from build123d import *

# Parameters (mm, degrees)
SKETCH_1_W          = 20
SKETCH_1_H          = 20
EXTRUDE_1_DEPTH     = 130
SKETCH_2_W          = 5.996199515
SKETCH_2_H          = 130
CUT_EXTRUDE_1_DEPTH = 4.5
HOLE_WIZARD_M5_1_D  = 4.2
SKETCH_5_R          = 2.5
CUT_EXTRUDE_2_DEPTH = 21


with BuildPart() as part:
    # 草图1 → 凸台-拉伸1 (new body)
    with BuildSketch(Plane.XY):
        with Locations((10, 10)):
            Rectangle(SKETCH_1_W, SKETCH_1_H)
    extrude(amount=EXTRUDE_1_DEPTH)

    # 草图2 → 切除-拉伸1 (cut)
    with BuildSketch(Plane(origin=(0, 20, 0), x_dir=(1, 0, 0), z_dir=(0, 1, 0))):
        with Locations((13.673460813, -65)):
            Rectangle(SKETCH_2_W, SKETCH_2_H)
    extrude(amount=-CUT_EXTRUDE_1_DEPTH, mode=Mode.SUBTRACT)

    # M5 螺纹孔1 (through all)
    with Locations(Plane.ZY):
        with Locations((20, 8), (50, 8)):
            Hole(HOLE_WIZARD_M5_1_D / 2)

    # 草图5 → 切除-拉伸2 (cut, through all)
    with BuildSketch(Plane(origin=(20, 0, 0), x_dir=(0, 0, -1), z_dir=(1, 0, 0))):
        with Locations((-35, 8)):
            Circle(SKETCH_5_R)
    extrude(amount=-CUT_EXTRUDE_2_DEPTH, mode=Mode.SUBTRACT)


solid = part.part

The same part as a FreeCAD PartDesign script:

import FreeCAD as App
import Part
import Sketcher

doc = App.newDocument("Part")
params = doc.addObject("Spreadsheet::Sheet", "Params")
for row, (alias, value) in enumerate([
    ("sketch1_width", "20 mm"),
    ("pad1_length", "130 mm"),
    ("sketch2_height", "130 mm"),
    ("pocket1_length", "4.5 mm"),
    ("sketch3_diameter", "4.2 mm"),
    ("hole_diameter", "4.2 mm"),
    ("sketch4_diameter", "5 mm"),
], start=1):
    params.set(f"A{row}", alias)
    params.set(f"B{row}", "=" + value)
    params.setAlias(f"B{row}", alias)

body = doc.addObject("PartDesign::Body", "Body")

sketch1 = body.newObject("Sketcher::SketchObject", "Sketch")
sketch1.AttachmentSupport = (doc.getObject("XY_Plane"), [""])
sketch1.MapMode = "FlatFace"
sketch1.addGeometry(Part.LineSegment(App.Vector(0, 20, 0), App.Vector(0, 0, 0)), False)
sketch1.addGeometry(Part.LineSegment(App.Vector(0, 0, 0), App.Vector(20, 0, 0)), False)
sketch1.addGeometry(Part.LineSegment(App.Vector(20, 0, 0), App.Vector(20, 20, 0)), False)
sketch1.addGeometry(Part.LineSegment(App.Vector(20, 20, 0), App.Vector(0, 20, 0)), False)
sketch1.addConstraint(Sketcher.Constraint("Coincident", 0, 2, 1, 1))
sketch1.addConstraint(Sketcher.Constraint("Coincident", 1, 2, 2, 1))
sketch1.addConstraint(Sketcher.Constraint("Coincident", 2, 2, 3, 1))
sketch1.addConstraint(Sketcher.Constraint("Coincident", 3, 2, 0, 1))
sketch1.addConstraint(Sketcher.Constraint("Vertical", 0))
sketch1.addConstraint(Sketcher.Constraint("Horizontal", 1))
sketch1.addConstraint(Sketcher.Constraint("Vertical", 2))
sketch1.addConstraint(Sketcher.Constraint("Horizontal", 3))
sketch1.addConstraint(Sketcher.Constraint("Coincident", 0, 2, -1, 1))
sketch1.addConstraint(Sketcher.Constraint("Equal", 3, 0))
sketch1.addConstraint(Sketcher.Constraint("DistanceX", 1, 1, 1, 2, 20.0))
sketch1.setExpression("Constraints[10]", "Params.sketch1_width")
pad1 = body.newObject("PartDesign::Pad", "Pad")
pad1.Profile = sketch1
pad1.setExpression("Length", "Params.pad1_length")

sketch2 = body.newObject("Sketcher::SketchObject", "Sketch001")
sketch2.AttachmentSupport = (doc.getObject("XZ_Plane"), [""])
sketch2.MapMode = "FlatFace"
sketch2.AttachmentOffset = App.Placement(App.Vector(0, 0, -20), App.Rotation())
sketch2.addGeometry(Part.LineSegment(App.Vector(11, 0, 0), App.Vector(11, 130, 0)), False)
sketch2.addGeometry(Part.LineSegment(App.Vector(11, 130, 0), App.Vector(17, 130, 0)), False)
sketch2.addGeometry(Part.LineSegment(App.Vector(17, 130, 0), App.Vector(17, 0, 0)), False)
sketch2.addGeometry(Part.LineSegment(App.Vector(17, 0, 0), App.Vector(11, 0, 0)), False)
sketch2.addConstraint(Sketcher.Constraint("Coincident", 0, 2, 1, 1))
sketch2.addConstraint(Sketcher.Constraint("Coincident", 1, 2, 2, 1))
sketch2.addConstraint(Sketcher.Constraint("Coincident", 2, 2, 3, 1))
sketch2.addConstraint(Sketcher.Constraint("Coincident", 3, 2, 0, 1))
sketch2.addConstraint(Sketcher.Constraint("Vertical", 0))
sketch2.addConstraint(Sketcher.Constraint("Horizontal", 1))
sketch2.addConstraint(Sketcher.Constraint("Vertical", 2))
sketch2.addConstraint(Sketcher.Constraint("Horizontal", 3))
sketch2.addConstraint(Sketcher.Constraint("PointOnObject", 2, 2, -1))
sketch2.addConstraint(Sketcher.Constraint("DistanceY", 0, 1, 0, 2, 130.0))
sketch2.addConstraint(Sketcher.Constraint("DistanceX", 1, 1, 1, 2, 5.9962))
sketch2.addConstraint(Sketcher.Constraint("DistanceX", -1, 1, 0, 2, 10.675361))
sketch2.setExpression("Constraints[9]", "Params.sketch2_height")
pocket1 = body.newObject("PartDesign::Pocket", "Pocket")
pocket1.Profile = sketch2
pocket1.setExpression("Length", "Params.pocket1_length")
pocket1.Reversed = True

sketch3 = body.newObject("Sketcher::SketchObject", "Sketch002")
sketch3.AttachmentSupport = (doc.getObject("YZ_Plane"), [""])
sketch3.MapMode = "FlatFace"
sketch3.addGeometry(Part.Circle(App.Vector(8, 20, 0), App.Vector(0, 0, 1), 2.1), False)
sketch3.addGeometry(Part.Circle(App.Vector(8, 50, 0), App.Vector(0, 0, 1), 2.1), False)
sketch3.addConstraint(Sketcher.Constraint("Equal", 0, 1))
sketch3.addConstraint(Sketcher.Constraint("Vertical", 0, 3, 1, 3))
sketch3.addConstraint(Sketcher.Constraint("Diameter", 0, 4.2))
sketch3.addConstraint(Sketcher.Constraint("DistanceX", -1, 1, 0, 3, 8.0))
sketch3.addConstraint(Sketcher.Constraint("DistanceY", -1, 1, 0, 3, 20.0))
sketch3.addConstraint(Sketcher.Constraint("DistanceY", -1, 1, 1, 3, 50.0))
sketch3.setExpression("Constraints[2]", "Params.sketch3_diameter")
doc.recompute()
hole = body.newObject("PartDesign::Hole", "Hole")
hole.Profile = sketch3
hole.ThreadType = "None"
hole.setExpression("Diameter", "Params.hole_diameter")
hole.DepthType = "ThroughAll"
hole.Reversed = True

sketch4 = body.newObject("Sketcher::SketchObject", "Sketch003")
sketch4.AttachmentSupport = (doc.getObject("YZ_Plane"), [""])
sketch4.MapMode = "FlatFace"
sketch4.AttachmentOffset = App.Placement(App.Vector(0, 0, 20), App.Rotation())
sketch4.addGeometry(Part.Circle(App.Vector(8, 35, 0), App.Vector(0, 0, 1), 2.5), False)
sketch4.addConstraint(Sketcher.Constraint("Diameter", 0, 5.0))
sketch4.addConstraint(Sketcher.Constraint("DistanceX", -1, 1, 0, 3, 8.0))
sketch4.addConstraint(Sketcher.Constraint("DistanceY", -1, 1, 0, 3, 35.0))
sketch4.setExpression("Constraints[0]", "Params.sketch4_diameter")
pocket2 = body.newObject("PartDesign::Pocket", "Pocket001")
pocket2.Profile = sketch4
pocket2.Type = "ThroughAll"

doc.recompute()
